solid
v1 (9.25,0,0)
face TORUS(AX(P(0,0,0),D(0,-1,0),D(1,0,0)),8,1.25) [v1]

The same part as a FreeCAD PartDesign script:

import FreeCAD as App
import Part
import Sketcher
from FreeCAD import Vector
Q = App.Units.Quantity

doc = App.newDocument("Part")
body = doc.addObject("PartDesign::Body", "Body")

sketch1 = body.newObject("Sketcher::SketchObject", "Sketch")
sketch1.AttachmentSupport = (doc.getObject("XY_Plane"), [""])
sketch1.MapMode = "FlatFace"
sketch1.addGeometry(Part.Circle(Vector(-8, 0, 0), Vector(0, 0, 1), 1.2), False)
sketch1.addConstraint([
    Sketcher.Constraint("PointOnObject", 0, 3, -1),
    Sketcher.Constraint("Diameter", 0, Q("2.5 mm")),
    Sketcher.Constraint("DistanceX", 0, 3, -1, 1, Q("8 mm")),
])
revolution = body.newObject("PartDesign::Revolution", "Revolution")
revolution.Profile = sketch1
revolution.ReferenceAxis = (sketch1, ["V_Axis"])
revolution.Angle = 360

doc.recompute()
